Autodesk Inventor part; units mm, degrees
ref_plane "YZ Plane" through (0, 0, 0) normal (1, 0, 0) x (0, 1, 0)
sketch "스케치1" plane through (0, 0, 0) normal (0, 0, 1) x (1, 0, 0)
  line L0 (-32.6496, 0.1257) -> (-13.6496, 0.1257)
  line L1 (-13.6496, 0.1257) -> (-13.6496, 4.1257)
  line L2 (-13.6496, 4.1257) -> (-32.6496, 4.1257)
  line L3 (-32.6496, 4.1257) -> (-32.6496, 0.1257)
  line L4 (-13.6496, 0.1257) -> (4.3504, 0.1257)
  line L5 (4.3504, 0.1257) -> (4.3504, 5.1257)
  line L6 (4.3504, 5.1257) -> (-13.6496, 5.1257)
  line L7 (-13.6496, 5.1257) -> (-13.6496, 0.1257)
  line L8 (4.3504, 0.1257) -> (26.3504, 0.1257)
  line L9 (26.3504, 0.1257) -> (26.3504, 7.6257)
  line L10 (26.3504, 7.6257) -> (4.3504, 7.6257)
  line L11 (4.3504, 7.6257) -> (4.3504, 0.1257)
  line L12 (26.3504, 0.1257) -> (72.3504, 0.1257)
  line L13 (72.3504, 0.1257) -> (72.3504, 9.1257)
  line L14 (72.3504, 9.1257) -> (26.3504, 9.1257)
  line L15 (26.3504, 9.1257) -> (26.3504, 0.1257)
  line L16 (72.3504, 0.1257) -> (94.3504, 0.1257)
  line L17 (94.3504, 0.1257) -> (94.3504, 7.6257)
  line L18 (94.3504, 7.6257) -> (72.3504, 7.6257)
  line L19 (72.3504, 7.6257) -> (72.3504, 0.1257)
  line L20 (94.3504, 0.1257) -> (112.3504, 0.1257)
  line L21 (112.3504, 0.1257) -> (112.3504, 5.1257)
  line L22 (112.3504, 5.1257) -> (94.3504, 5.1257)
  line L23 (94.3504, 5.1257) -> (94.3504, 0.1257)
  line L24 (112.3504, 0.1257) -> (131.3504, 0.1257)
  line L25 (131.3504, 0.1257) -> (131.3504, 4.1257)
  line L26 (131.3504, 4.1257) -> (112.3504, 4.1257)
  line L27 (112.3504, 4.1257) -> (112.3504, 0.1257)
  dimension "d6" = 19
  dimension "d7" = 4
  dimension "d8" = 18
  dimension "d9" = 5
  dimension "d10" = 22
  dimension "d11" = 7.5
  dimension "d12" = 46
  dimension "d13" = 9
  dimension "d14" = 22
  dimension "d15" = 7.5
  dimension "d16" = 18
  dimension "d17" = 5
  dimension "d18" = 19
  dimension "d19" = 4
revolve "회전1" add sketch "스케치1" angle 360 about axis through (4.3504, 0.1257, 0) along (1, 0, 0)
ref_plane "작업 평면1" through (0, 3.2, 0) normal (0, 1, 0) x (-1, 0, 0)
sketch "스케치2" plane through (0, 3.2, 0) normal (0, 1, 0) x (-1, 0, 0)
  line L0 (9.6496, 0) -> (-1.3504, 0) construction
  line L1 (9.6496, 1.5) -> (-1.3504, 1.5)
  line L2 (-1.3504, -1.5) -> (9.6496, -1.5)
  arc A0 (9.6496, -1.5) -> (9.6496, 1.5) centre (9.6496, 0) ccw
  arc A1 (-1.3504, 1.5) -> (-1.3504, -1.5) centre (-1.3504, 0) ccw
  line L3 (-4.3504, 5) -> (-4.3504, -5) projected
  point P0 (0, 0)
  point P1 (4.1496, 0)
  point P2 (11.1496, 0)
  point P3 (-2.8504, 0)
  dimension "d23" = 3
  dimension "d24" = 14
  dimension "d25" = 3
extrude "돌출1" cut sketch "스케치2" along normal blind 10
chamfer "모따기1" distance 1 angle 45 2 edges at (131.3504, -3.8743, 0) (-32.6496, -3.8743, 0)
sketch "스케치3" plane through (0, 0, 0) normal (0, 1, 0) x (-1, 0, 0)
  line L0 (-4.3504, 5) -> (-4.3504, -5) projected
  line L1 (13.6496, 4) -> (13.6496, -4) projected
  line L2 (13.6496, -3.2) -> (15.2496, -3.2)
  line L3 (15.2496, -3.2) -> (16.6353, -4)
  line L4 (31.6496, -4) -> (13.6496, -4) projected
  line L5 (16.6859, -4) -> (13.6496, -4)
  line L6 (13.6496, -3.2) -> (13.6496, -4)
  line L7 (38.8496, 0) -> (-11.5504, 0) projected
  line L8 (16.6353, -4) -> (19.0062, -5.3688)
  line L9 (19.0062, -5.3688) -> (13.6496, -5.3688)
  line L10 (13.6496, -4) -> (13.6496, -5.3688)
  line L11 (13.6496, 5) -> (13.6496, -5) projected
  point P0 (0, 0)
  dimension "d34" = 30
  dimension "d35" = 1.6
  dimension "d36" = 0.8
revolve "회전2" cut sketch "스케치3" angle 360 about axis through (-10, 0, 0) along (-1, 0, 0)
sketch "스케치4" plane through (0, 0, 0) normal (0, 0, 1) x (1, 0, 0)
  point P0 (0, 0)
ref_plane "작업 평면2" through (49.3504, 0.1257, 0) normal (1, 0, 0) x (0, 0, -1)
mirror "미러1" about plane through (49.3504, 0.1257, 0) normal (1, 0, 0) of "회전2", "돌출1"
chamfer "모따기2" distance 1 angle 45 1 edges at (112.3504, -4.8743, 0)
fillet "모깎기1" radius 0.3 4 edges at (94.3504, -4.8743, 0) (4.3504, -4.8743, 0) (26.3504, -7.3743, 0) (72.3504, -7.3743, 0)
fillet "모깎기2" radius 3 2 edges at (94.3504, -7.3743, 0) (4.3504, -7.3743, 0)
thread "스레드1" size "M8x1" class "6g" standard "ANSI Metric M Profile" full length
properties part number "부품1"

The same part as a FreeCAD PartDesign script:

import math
import FreeCAD as App
import Part
import Sketcher
Q = App.Units.Quantity


def edges_at(feature, points):
    """Names of the edges that pass closest to the given points."""
    edges = feature.Shape.Edges
    near = lambda p: min(range(len(edges)), key=lambda i: edges[i].distToShape(Part.Vertex(*p))[0])
    return sorted({f"Edge{near(p) + 1}" for p in points})


def add_polygon(sketch, points):
    """Adds a closed chain of lines whose ends are joined by coincident constraints."""
    first, n = sketch.GeometryCount, len(points)
    for a, b in zip(points, points[1:] + points[:1]):
        sketch.addGeometry(Part.LineSegment(App.Vector(*a, 0), App.Vector(*b, 0)), False)
    for i in range(n):
        sketch.addConstraint(Sketcher.Constraint("Coincident", first + i, 2, first + (i + 1) % n, 1))

doc = App.newDocument("Part")
params = doc.addObject("Spreadsheet::Sheet", "Params")
for row, (alias, value) in enumerate([
    ("sketch1_width", "19 mm"),
    ("sketch1_width2", "18 mm"),
    ("sketch1_width3", "22 mm"),
    ("sketch1_width4", "46 mm"),
    ("sketch1_height", "4 mm"),
    ("revolution_angle", "360 deg"),
    ("sketch2_radius", "1.5 mm"),
    ("sketch2_width", "11 mm"),
    ("pocket1_length", "10 mm"),
    ("chamfer_size", "1 mm"),
    ("sketch3_width", "1.6 mm"),
    ("sketch3_length", "1.6 mm"),
    ("groove_angle", "360 deg"),
    ("chamfer2_size", "1 mm"),
    ("fillet_radius", "0.3 mm"),
    ("fillet2_radius", "3 mm"),
], start=1):
    params.set(f"A{row}", alias)
    params.set(f"B{row}", "=" + value)
    params.setAlias(f"B{row}", alias)

body = doc.addObject("PartDesign::Body", "Body")

# Sketch on XY plane
sketch1 = doc.addObject("Sketcher::SketchObject", "Sketch")
body.addObject(sketch1)
sketch1.AttachmentSupport = (doc.XY_Plane, [""])
sketch1.MapMode = "FlatFace"
add_polygon(sketch1, [(-32.6, 4.1), (-32.6, 0.1), (131.4, 0.1), (131.4, 4.1), (112.4, 4.1), (112.4, 5.1), (94.4, 5.1), (94.4, 7.6), (72.4, 7.6), (72.4, 9.1), (26.4, 9.1), (26.4, 7.6), (4.4, 7.6), (4.4, 5.1), (-13.6, 5.1), (-13.6, 4.1)])  # lines 0-15
sketch1.addGeometry(Part.LineSegment(App.Vector(-32.6, 0.1, 0), App.Vector(131.4, 0.1, 0)), True)  # axis
sketch1.addConstraint([
    Sketcher.Constraint("Vertical", 0),
    Sketcher.Constraint("Horizontal", 1),
    Sketcher.Constraint("Vertical", 2),
    Sketcher.Constraint("Horizontal", 3),
    Sketcher.Constraint("Vertical", 4),
    Sketcher.Constraint("Horizontal", 5),
    Sketcher.Constraint("Vertical", 6),
    Sketcher.Constraint("Horizontal", 7),
    Sketcher.Constraint("Vertical", 8),
    Sketcher.Constraint("Horizontal", 9),
    Sketcher.Constraint("Vertical", 10),
    Sketcher.Constraint("Horizontal", 11),
    Sketcher.Constraint("Vertical", 12),
    Sketcher.Constraint("Horizontal", 13),
    Sketcher.Constraint("Vertical", 14),
    Sketcher.Constraint("Horizontal", 15),
    Sketcher.Constraint("Horizontal", 16),
    Sketcher.Constraint("Coincident", 16, 1, 0, 2),
    Sketcher.Constraint("Horizontal", 7, 2, 10, 2),
    Sketcher.Constraint("Horizontal", 5, 2, 12, 2),
    Sketcher.Constraint("Horizontal", 3, 2, 14, 2),
    Sketcher.Constraint("Vertical", 2, 2, 16, 2),
    Sketcher.Constraint("Equal", 7, 11),
    Sketcher.Constraint("Equal", 5, 13),
    Sketcher.Constraint("Equal", 3, 15),
    Sketcher.Constraint("DistanceX", 3, 2, 3, 1, Q("19 mm")),
    Sketcher.Constraint("DistanceX", 5, 2, 5, 1, Q("18 mm")),
    Sketcher.Constraint("DistanceX", 7, 2, 7, 1, Q("22 mm")),
    Sketcher.Constraint("DistanceX", 9, 2, 9, 1, Q("46 mm")),
    Sketcher.Constraint("DistanceY", 0, 2, 0, 1, Q("4 mm")),
    Sketcher.Constraint("DistanceY", 1, 2, 4, 2, Q("5 mm")),
    Sketcher.Constraint("DistanceY", 5, 2, 8, 2, Q("4 mm")),
    Sketcher.Constraint("DistanceY", 1, 2, 6, 2, Q("7.5 mm")),
    Sketcher.Constraint("DistanceX", 0, 2, -1, 1, Q("32.6496 mm")),
    Sketcher.Constraint("DistanceY", -1, 1, 0, 2, Q("0.1257 mm")),
])
sketch1.setExpression("Constraints[41]", "Params.sketch1_width")
sketch1.setExpression("Constraints[42]", "Params.sketch1_width2")
sketch1.setExpression("Constraints[43]", "Params.sketch1_width3")
sketch1.setExpression("Constraints[44]", "Params.sketch1_width4")
sketch1.setExpression("Constraints[45]", "Params.sketch1_height")
revolution = doc.addObject("PartDesign::Revolution", "Revolution")
body.addObject(revolution)
revolution.Profile = sketch1
revolution.ReferenceAxis = (sketch1, ["Axis0"])
revolution.setExpression("Angle", "Params.revolution_angle")

# Sketch on XZ plane
sketch2 = doc.addObject("Sketcher::SketchObject", "Sketch001")
body.addObject(sketch2)
sketch2.AttachmentSupport = (doc.XZ_Plane, [""])
sketch2.MapMode = "FlatFace"
sketch2.AttachmentOffset = App.Placement(App.Vector(0, 0, -3.2), App.Rotation())
sketch2.addGeometry([
    Part.ArcOfCircle(Part.Circle(App.Vector(-9.6, 0, 0), App.Vector(0, 0, 1), 1.5), math.radians(90), math.radians(270)),
    Part.LineSegment(App.Vector(-9.6, 1.5, 0), App.Vector(1.4, 1.5, 0)),
    Part.ArcOfCircle(Part.Circle(App.Vector(1.4, 0, 0), App.Vector(0, 0, 1), 1.5), math.radians(-90), math.radians(90)),
    Part.LineSegment(App.Vector(1.4, -1.5, 0), App.Vector(-9.6, -1.5, 0)),
], False)
sketch2.addConstraint([
    Sketcher.Constraint("Tangent", 0, 1, 1, 1),
    Sketcher.Constraint("Tangent", 1, 2, 2, 2),
    Sketcher.Constraint("Tangent", 2, 1, 3, 1),
    Sketcher.Constraint("Tangent", 3, 2, 0, 2),
    Sketcher.Constraint("Horizontal", 1),
    Sketcher.Constraint("Horizontal", 3),
    Sketcher.Constraint("PointOnObject", 0, 3, -1),
    Sketcher.Constraint("Radius", 0, Q("1.5 mm")),
    Sketcher.Constraint("DistanceX", 1, 1, 1, 2, Q("11 mm")),
    Sketcher.Constraint("DistanceX", 0, 3, -1, 1, Q("9.6496 mm")),
])
sketch2.setExpression("Constraints[7]", "Params.sketch2_radius")
sketch2.setExpression("Constraints[8]", "Params.sketch2_width")
pocket1 = doc.addObject("PartDesign::Pocket", "Pocket")
body.addObject(pocket1)
pocket1.Profile = sketch2
pocket1.setExpression("Length", "Params.pocket1_length")
doc.recompute()

chamfer = doc.addObject("PartDesign::Chamfer", "Chamfer")
body.addObject(chamfer)
chamfer.Base = (pocket1, edges_at(pocket1, [(131.35, -3.874, 0), (-32.65, -3.874, 0)]))
chamfer.setExpression("Size", "Params.chamfer_size")

# Sketch on XZ plane
sketch3 = doc.addObject("Sketcher::SketchObject", "Sketch002")
body.addObject(sketch3)
sketch3.AttachmentSupport = (doc.XZ_Plane, [""])
sketch3.MapMode = "FlatFace"
add_polygon(sketch3, [(-15.2, -3.2), (-13.6, -3.2), (-13.6, -5.4), (-19, -5.4), (-16.6, -4)])  # lines 0-4
sketch3.addConstraint([
    Sketcher.Constraint("Horizontal", 0),
    Sketcher.Constraint("Vertical", 1),
    Sketcher.Constraint("Horizontal", 2),
    Sketcher.Constraint("Parallel", 3, 4),
    Sketcher.Constraint("DistanceX", 0, 1, 0, 2, Q("1.6 mm")),
    Sketcher.Constraint("Distance", 4, Q("1.6 mm")),
    Sketcher.Constraint("DistanceY", 3, 2, 0, 2, Q("0.8 mm")),
    Sketcher.Constraint("DistanceY", 3, 2, -1, 1, Q("4 mm")),
    Sketcher.Constraint("DistanceX", 2, 2, 2, 1, Q("5.3566 mm")),
    Sketcher.Constraint("DistanceX", 0, 2, -1, 1, Q("13.6496 mm")),
])
sketch3.setExpression("Constraints[9]", "Params.sketch3_width")
sketch3.setExpression("Constraints[10]", "Params.sketch3_length")
groove = doc.addObject("PartDesign::Groove", "Groove")
body.addObject(groove)
groove.Profile = sketch3
groove.ReferenceAxis = (sketch3, ["H_Axis"])
groove.setExpression("Angle", "Params.groove_angle")
doc.recompute()

datumplane = doc.addObject("PartDesign::Plane", "DatumPlane")
body.addObject(datumplane)
datumplane.AttachmentSupport = (doc.YZ_Plane, [""])
datumplane.MapMode = "FlatFace"
datumplane.AttachmentOffset = App.Placement(App.Vector(0, 0, 49.3504), App.Rotation())
mirrored = doc.addObject("PartDesign::Mirrored", "Mirrored")
body.addObject(mirrored)
mirrored.Originals = [groove, pocket1]
mirrored.MirrorPlane = (datumplane, [""])
body.Tip = mirrored
doc.recompute()

chamfer2 = doc.addObject("PartDesign::Chamfer", "Chamfer001")
body.addObject(chamfer2)
chamfer2.Base = (mirrored, edges_at(mirrored, [(112.35, -4.874, 0)]))
chamfer2.setExpression("Size", "Params.chamfer2_size")
doc.recompute()

fillet = doc.addObject("PartDesign::Fillet", "Fillet")
body.addObject(fillet)
fillet.Base = (chamfer2, edges_at(chamfer2, [
    (94.35, -4.874, 0),
    (4.35, -4.874, 0),
    (26.35, -7.374, 0),
    (72.35, -7.374, 0),
]))
fillet.setExpression("Radius", "Params.fillet_radius")
doc.recompute()

fillet2 = doc.addObject("PartDesign::Fillet", "Fillet001")
body.addObject(fillet2)
fillet2.Base = (fillet, edges_at(fillet, [(94.35, -7.374, 0), (4.35, -7.374, 0)]))
fillet2.setExpression("Radius", "Params.fillet2_radius")

doc.recompute()
